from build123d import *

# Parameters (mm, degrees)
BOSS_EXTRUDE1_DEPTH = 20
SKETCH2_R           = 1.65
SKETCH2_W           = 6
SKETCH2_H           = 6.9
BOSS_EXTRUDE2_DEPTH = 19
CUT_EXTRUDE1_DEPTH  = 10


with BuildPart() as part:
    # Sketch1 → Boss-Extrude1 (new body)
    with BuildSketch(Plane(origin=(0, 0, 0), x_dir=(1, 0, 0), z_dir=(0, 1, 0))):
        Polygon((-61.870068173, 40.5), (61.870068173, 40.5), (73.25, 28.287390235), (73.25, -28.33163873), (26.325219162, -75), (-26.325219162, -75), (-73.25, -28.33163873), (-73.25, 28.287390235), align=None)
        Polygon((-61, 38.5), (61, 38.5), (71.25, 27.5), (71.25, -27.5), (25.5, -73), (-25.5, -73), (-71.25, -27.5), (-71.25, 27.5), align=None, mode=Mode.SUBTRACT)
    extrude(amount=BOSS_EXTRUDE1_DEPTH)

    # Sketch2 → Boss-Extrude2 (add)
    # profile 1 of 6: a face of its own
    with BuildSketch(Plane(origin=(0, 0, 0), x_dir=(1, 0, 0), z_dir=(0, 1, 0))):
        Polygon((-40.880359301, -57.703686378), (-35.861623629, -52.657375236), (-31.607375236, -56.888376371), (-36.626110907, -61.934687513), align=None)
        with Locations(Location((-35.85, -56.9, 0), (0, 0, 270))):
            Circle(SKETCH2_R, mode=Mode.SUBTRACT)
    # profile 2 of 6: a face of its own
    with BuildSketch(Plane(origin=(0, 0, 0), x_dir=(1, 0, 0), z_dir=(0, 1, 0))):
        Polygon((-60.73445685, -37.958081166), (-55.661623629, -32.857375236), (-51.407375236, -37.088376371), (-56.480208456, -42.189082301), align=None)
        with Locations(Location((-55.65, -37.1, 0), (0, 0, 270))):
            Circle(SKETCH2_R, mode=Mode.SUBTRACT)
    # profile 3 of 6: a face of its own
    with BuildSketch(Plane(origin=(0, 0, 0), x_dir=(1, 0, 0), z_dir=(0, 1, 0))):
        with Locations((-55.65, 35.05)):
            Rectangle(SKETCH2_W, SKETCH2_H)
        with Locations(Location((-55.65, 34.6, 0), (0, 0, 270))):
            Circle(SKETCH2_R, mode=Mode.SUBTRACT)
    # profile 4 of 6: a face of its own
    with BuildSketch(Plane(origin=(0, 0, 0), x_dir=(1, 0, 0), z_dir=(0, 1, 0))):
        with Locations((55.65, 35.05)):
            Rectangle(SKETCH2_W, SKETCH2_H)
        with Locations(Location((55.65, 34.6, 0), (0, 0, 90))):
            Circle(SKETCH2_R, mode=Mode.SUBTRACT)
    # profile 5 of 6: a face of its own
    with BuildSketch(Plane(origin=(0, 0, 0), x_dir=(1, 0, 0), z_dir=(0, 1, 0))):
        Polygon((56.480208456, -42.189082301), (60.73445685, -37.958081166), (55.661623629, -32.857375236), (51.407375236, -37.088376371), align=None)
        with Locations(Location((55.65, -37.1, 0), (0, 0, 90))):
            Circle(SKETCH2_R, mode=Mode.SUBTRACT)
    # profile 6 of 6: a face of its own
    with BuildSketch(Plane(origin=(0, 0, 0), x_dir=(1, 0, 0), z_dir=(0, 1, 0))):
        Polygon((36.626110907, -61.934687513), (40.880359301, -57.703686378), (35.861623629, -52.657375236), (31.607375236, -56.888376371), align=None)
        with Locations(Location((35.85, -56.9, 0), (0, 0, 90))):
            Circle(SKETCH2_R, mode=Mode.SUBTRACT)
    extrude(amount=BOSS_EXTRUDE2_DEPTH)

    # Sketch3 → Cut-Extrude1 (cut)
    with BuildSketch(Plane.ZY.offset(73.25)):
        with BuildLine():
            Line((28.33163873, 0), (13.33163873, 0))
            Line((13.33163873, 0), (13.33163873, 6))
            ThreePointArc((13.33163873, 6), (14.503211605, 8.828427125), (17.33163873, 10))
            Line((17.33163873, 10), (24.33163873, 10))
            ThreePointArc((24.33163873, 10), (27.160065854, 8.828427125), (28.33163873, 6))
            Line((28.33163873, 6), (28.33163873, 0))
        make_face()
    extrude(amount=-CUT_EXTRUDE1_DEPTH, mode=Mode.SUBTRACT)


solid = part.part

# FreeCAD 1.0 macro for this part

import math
import FreeCAD as App
import Part
import Sketcher
from FreeCAD import Vector
Q = App.Units.Quantity

doc = App.newDocument("Part")
params = doc.addObject("Spreadsheet::Sheet", "Params")
for row, (alias, value) in enumerate([
    ("sketch1_width", "122 mm"),
    ("sketch1_width2", "51 mm"),
    ("sketch1_height", "55 mm"),
    ("pad1_length", "20 mm"),
    ("sketch2_diameter", "3.3 mm"),
    ("sketch2_width", "6 mm"),
    ("sketch2_length", "6 mm"),
    ("sketch2_height", "6.9 mm"),
    ("pad2_length", "19 mm"),
    ("sketch3_radius", "4 mm"),
    ("sketch3_width", "6 mm"),
    ("sketch3_height", "15 mm"),
    ("pocket1_length", "10 mm"),
], start=1):
    params.set(f"A{row}", alias)
    params.set(f"B{row}", "=" + value)
    params.setAlias(f"B{row}", alias)

body = doc.addObject("PartDesign::Body", "Body")

# Sketch on XZ plane
sketch1 = doc.addObject("Sketcher::SketchObject", "Sketch")
body.addObject(sketch1)
sketch1.AttachmentSupport = (doc.XZ_Plane, [""])
sketch1.MapMode = "FlatFace"
sketch1.addGeometry([
    Part.LineSegment(Vector(62, -40, 0), Vector(-62, -40, 0)),  # 0
    Part.LineSegment(Vector(-62, -40, 0), Vector(-73, -28, 0)),  # 1
    Part.LineSegment(Vector(-73, -28, 0), Vector(-73, 28, 0)),  # 2
    Part.LineSegment(Vector(-73, 28, 0), Vector(-26, 75, 0)),  # 3
    Part.LineSegment(Vector(-26, 75, 0), Vector(26, 75, 0)),  # 4
    Part.LineSegment(Vector(26, 75, 0), Vector(73, 28, 0)),  # 5
    Part.LineSegment(Vector(73, 28, 0), Vector(73, -28, 0)),  # 6
    Part.LineSegment(Vector(73, -28, 0), Vector(62, -40, 0)),  # 7
    Part.LineSegment(Vector(-61, -38, 0), Vector(61, -38, 0)),  # 8
    Part.LineSegment(Vector(61, -38, 0), Vector(71, -28, 0)),  # 9
    Part.LineSegment(Vector(71, -28, 0), Vector(71, 28, 0)),  # 10
    Part.LineSegment(Vector(71, 28, 0), Vector(26, 73, 0)),  # 11
    Part.LineSegment(Vector(26, 73, 0), Vector(-26, 73, 0)),  # 12
    Part.LineSegment(Vector(-26, 73, 0), Vector(-71, 28, 0)),  # 13
    Part.LineSegment(Vector(-71, 28, 0), Vector(-71, -28, 0)),  # 14
    Part.LineSegment(Vector(-71, -28, 0), Vector(-61, -38, 0)),  # 15
], False)
sketch1.addConstraint([
    Sketcher.Constraint("Coincident", 0, 2, 1, 1),
    Sketcher.Constraint("Coincident", 1, 2, 2, 1),
    Sketcher.Constraint("Coincident", 2, 2, 3, 1),
    Sketcher.Constraint("Coincident", 3, 2, 4, 1),
    Sketcher.Constraint("Coincident", 4, 2, 5, 1),
    Sketcher.Constraint("Coincident", 5, 2, 6, 1),
    Sketcher.Constraint("Coincident", 6, 2, 7, 1),
    Sketcher.Constraint("Coincident", 7, 2, 0, 1),
    Sketcher.Constraint("Coincident", 8, 2, 9, 1),
    Sketcher.Constraint("Coincident", 9, 2, 10, 1),
    Sketcher.Constraint("Coincident", 10, 2, 11, 1),
    Sketcher.Constraint("Coincident", 11, 2, 12, 1),
    Sketcher.Constraint("Coincident", 12, 2, 13, 1),
    Sketcher.Constraint("Coincident", 13, 2, 14, 1),
    Sketcher.Constraint("Coincident", 14, 2, 15, 1),
    Sketcher.Constraint("Coincident", 15, 2, 8, 1),
    Sketcher.Constraint("Horizontal", 0),
    Sketcher.Constraint("Vertical", 2),
    Sketcher.Constraint("Horizontal", 4),
    Sketcher.Constraint("Vertical", 6),
    Sketcher.Constraint("Horizontal", 8),
    Sketcher.Constraint("Vertical", 10),
    Sketcher.Constraint("Horizontal", 12),
    Sketcher.Constraint("Vertical", 14),
    Sketcher.Constraint("Symmetric", 9, 2, 13, 2, -1, 1),
    Sketcher.Constraint("Symmetric", 2, 2, 5, 2, -2),
    Sketcher.Constraint("Parallel", 7, 9),
    Sketcher.Constraint("Parallel", 5, 11),
    Sketcher.Constraint("Parallel", 3, 13),
    Sketcher.Constraint("Parallel", 1, 15),
    Sketcher.Constraint("Horizontal", 1, 2, 6, 2),
    Sketcher.Constraint("Horizontal", 10, 2, 13, 2),
    Sketcher.Constraint("Horizontal", 9, 2, 14, 2),
    Sketcher.Constraint("Equal", 3, 5),
    Sketcher.Constraint("Equal", 1, 7),
    Sketcher.Constraint("DistanceX", 8, 1, 8, 2, Q("122 mm")),
    Sketcher.Constraint("DistanceX", 12, 2, 12, 1, Q("51 mm")),
    Sketcher.Constraint("DistanceY", 10, 1, 10, 2, Q("55 mm")),
    Sketcher.Constraint("DistanceY", -1, 1, 3, 2, Q("75 mm")),
    Sketcher.Constraint("DistanceY", -1, 1, 11, 2, Q("73 mm")),
    Sketcher.Constraint("DistanceY", 7, 2, 8, 2, Q("2 mm")),
    Sketcher.Constraint("DistanceX", 9, 2, 6, 2, Q("2 mm")),
    Sketcher.Constraint("DistanceY", 8, 2, 9, 2, Q("11 mm")),
    Sketcher.Constraint("DistanceX", 2, 2, 5, 2, Q("146.5 mm")),
    Sketcher.Constraint("DistanceX", 4, 1, 4, 2, Q("52.650438 mm")),
    Sketcher.Constraint("DistanceY", 2, 1, 2, 2, Q("56.619029 mm")),
])
sketch1.setExpression("Constraints[35]", "Params.sketch1_width")
sketch1.setExpression("Constraints[36]", "Params.sketch1_width2")
sketch1.setExpression("Constraints[37]", "Params.sketch1_height")
pad1 = doc.addObject("PartDesign::Pad", "Pad")
body.addObject(pad1)
pad1.Profile = sketch1
pad1.setExpression("Length", "Params.pad1_length")
pad1.Reversed = True

# Sketch on XZ plane
sketch2 = doc.addObject("Sketcher::SketchObject", "Sketch001")
body.addObject(sketch2)
sketch2.AttachmentSupport = (doc.XZ_Plane, [""])
sketch2.MapMode = "FlatFace"
sketch2.addGeometry([
    Part.LineSegment(Vector(-35.9, 52.7, 0), Vector(-40.9, 57.7, 0)),  # 0
    Part.LineSegment(Vector(-40.9, 57.7, 0), Vector(-36.6, 61.9, 0)),  # 1
    Part.LineSegment(Vector(-36.6, 61.9, 0), Vector(-31.6, 56.9, 0)),  # 2
    Part.LineSegment(Vector(-31.6, 56.9, 0), Vector(-35.9, 52.7, 0)),  # 3
    Part.Circle(Vector(-35.9, 56.9, 0), Vector(0, 0, 1), 1.6),  # 4
    Part.LineSegment(Vector(-55.7, 32.9, 0), Vector(-60.7, 38, 0)),  # 5
    Part.LineSegment(Vector(-60.7, 38, 0), Vector(-56.5, 42.2, 0)),  # 6
    Part.LineSegment(Vector(-56.5, 42.2, 0), Vector(-51.4, 37.1, 0)),  # 7
    Part.LineSegment(Vector(-51.4, 37.1, 0), Vector(-55.7, 32.9, 0)),  # 8
    Part.Circle(Vector(-55.6, 37.1, 0), Vector(0, 0, 1), 1.6),  # 9
    Part.LineSegment(Vector(-58.6, -38.5, 0), Vector(-58.6, -31.6, 0)),  # 10
    Part.LineSegment(Vector(-58.6, -31.6, 0), Vector(-52.6, -31.6, 0)),  # 11
    Part.LineSegment(Vector(-52.6, -31.6, 0), Vector(-52.6, -38.5, 0)),  # 12
    Part.LineSegment(Vector(-52.6, -38.5, 0), Vector(-58.6, -38.5, 0)),  # 13
    Part.Circle(Vector(-55.6, -34.6, 0), Vector(0, 0, 1), 1.6),  # 14
    Part.LineSegment(Vector(52.6, -38.5, 0), Vector(52.6, -31.6, 0)),  # 15
    Part.LineSegment(Vector(52.6, -31.6, 0), Vector(58.6, -31.6, 0)),  # 16
    Part.LineSegment(Vector(58.6, -31.6, 0), Vector(58.6, -38.5, 0)),  # 17
    Part.LineSegment(Vector(58.6, -38.5, 0), Vector(52.6, -38.5, 0)),  # 18
    Part.Circle(Vector(55.6, -34.6, 0), Vector(0, 0, 1), 1.6),  # 19
    Part.LineSegment(Vector(56.5, 42.2, 0), Vector(60.7, 38, 0)),  # 20
    Part.LineSegment(Vector(60.7, 38, 0), Vector(55.7, 32.9, 0)),  # 21
    Part.LineSegment(Vector(55.7, 32.9, 0), Vector(51.4, 37.1, 0)),  # 22
    Part.LineSegment(Vector(51.4, 37.1, 0), Vector(56.5, 42.2, 0)),  # 23
    Part.Circle(Vector(55.6, 37.1, 0), Vector(0, 0, 1), 1.6),  # 24
    Part.LineSegment(Vector(36.6, 61.9, 0), Vector(40.9, 57.7, 0)),  # 25
    Part.LineSegment(Vector(40.9, 57.7, 0), Vector(35.9, 52.7, 0)),  # 26
    Part.LineSegment(Vector(35.9, 52.7, 0), Vector(31.6, 56.9, 0)),  # 27
    Part.LineSegment(Vector(31.6, 56.9, 0), Vector(36.6, 61.9, 0)),  # 28
    Part.Circle(Vector(35.9, 56.9, 0), Vector(0, 0, 1), 1.6),  # 29
], False)
sketch2.addConstraint([
    Sketcher.Constraint("Coincident", 0, 2, 1, 1),
    Sketcher.Constraint("Coincident", 1, 2, 2, 1),
    Sketcher.Constraint("Coincident", 2, 2, 3, 1),
    Sketcher.Constraint("Coincident", 3, 2, 0, 1),
    Sketcher.Constraint("Coincident", 5, 2, 6, 1),
    Sketcher.Constraint("Coincident", 6, 2, 7, 1),
    Sketcher.Constraint("Coincident", 7, 2, 8, 1),
    Sketcher.Constraint("Coincident", 8, 2, 5, 1),
    Sketcher.Constraint("Coincident", 10, 2, 11, 1),
    Sketcher.Constraint("Coincident", 11, 2, 12, 1),
    Sketcher.Constraint("Coincident", 12, 2, 13, 1),
    Sketcher.Constraint("Coincident", 13, 2, 10, 1),
    Sketcher.Constraint("Coincident", 15, 2, 16, 1),
    Sketcher.Constraint("Coincident", 16, 2, 17, 1),
    Sketcher.Constraint("Coincident", 17, 2, 18, 1),
    Sketcher.Constraint("Coincident", 18, 2, 15, 1),
    Sketcher.Constraint("Coincident", 20, 2, 21, 1),
    Sketcher.Constraint("Coincident", 21, 2, 22, 1),
    Sketcher.Constraint("Coincident", 22, 2, 23, 1),
    Sketcher.Constraint("Coincident", 23, 2, 20, 1),
    Sketcher.Constraint("Coincident", 25, 2, 26, 1),
    Sketcher.Constraint("Coincident", 26, 2, 27, 1),
    Sketcher.Constraint("Coincident", 27, 2, 28, 1),
    Sketcher.Constraint("Coincident", 28, 2, 25, 1),
    Sketcher.Constraint("Vertical", 10),
    Sketcher.Constraint("Horizontal", 11),
    Sketcher.Constraint("Vertical", 12),
    Sketcher.Constraint("Horizontal", 13),
    Sketcher.Constraint("Vertical", 15),
    Sketcher.Constraint("Horizontal", 16),
    Sketcher.Constraint("Vertical", 17),
    Sketcher.Constraint("Horizontal", 18),
    Sketcher.Constraint("Equal", 4, 9),
    Sketcher.Constraint("Equal", 9, 14),
    Sketcher.Constraint("Equal", 14, 19),
    Sketcher.Constraint("Equal", 19, 24),
    Sketcher.Constraint("Equal", 24, 29),
    Sketcher.Constraint("Symmetric", 14, 3, 19, 3, -2),
    Sketcher.Constraint("Symmetric", 9, 3, 24, 3, -2),
    Sketcher.Constraint("Symmetric", 4, 3, 29, 3, -2),
    Sketcher.Constraint("Symmetric", 11, 2, 15, 2, -2),
    Sketcher.Constraint("Symmetric", 13, 2, 17, 2, -2),
    Sketcher.Constraint("Symmetric", 5, 2, 20, 2, -2),
    Sketcher.Constraint("Symmetric", 8, 2, 21, 2, -2),
    Sketcher.Constraint("Symmetric", 7, 2, 22, 2, -2),
    Sketcher.Constraint("Symmetric", 6, 2, 23, 2, -2),
    Sketcher.Constraint("Symmetric", 0, 2, 25, 2, -2),
    Sketcher.Constraint("Symmetric", 3, 2, 26, 2, -2),
    Sketcher.Constraint("Symmetric", 2, 2, 27, 2, -2),
    Sketcher.Constraint("Symmetric", 1, 2, 28, 2, -2),
    Sketcher.Constraint("Perpendicular", 0, 1),
    Sketcher.Constraint("Perpendicular", 1, 2),
    Sketcher.Constraint("Perpendicular", 2, 3),
    Sketcher.Constraint("Perpendicular", 3, 5),
    Sketcher.Constraint("Perpendicular", 5, 6),
    Sketcher.Constraint("Perpendicular", 6, 7),
    Sketcher.Constraint("Perpendicular", 7, 8),
    Sketcher.Constraint("Vertical", 9, 3, 14, 3),
    Sketcher.Constraint("Equal", 3, 6),
    Sketcher.Constraint("Diameter", 4, Q("3.3 mm")),
    Sketcher.Constraint("DistanceX", 11, 1, 11, 2, Q("6 mm")),
    Sketcher.Constraint("Distance", 1, Q("6 mm")),
    Sketcher.Constraint("DistanceY", 10, 1, 10, 2, Q("6.9 mm")),
    Sketcher.Constraint("DistanceX", 10, 2, 14, 3, Q("3 mm")),
    Sketcher.Constraint("DistanceY", 14, 3, 10, 2, Q("3 mm")),
    Sketcher.Constraint("DistanceY", -1, 1, 4, 3, Q("56.9 mm")),
    Sketcher.Constraint("DistanceY", -1, 1, 9, 3, Q("37.1 mm")),
    Sketcher.Constraint("DistanceY", 14, 3, -1, 1, Q("34.6 mm")),
    Sketcher.Constraint("DistanceX", 9, 3, 4, 3, Q("19.8 mm")),
    Sketcher.Constraint("DistanceX", 14, 3, 19, 3, Q("111.3 mm")),
    Sketcher.Constraint("DistanceX", 8, 2, 3, 2, Q("19.8 mm")),
    Sketcher.Constraint("DistanceY", 8, 2, 3, 2, Q("19.8 mm")),
    Sketcher.Constraint("DistanceY", 0, 2, 1, 2, Q("4.231001 mm")),
    Sketcher.Constraint("Distance", 0, Q("7.11709 mm")),
    Sketcher.Constraint("DistanceX", 0, 2, -1, 1, Q("40.880359 mm")),
    Sketcher.Constraint("DistanceY", -1, 1, 5, 2, Q("37.958081 mm")),
    Sketcher.Constraint("DistanceX", 6, 2, -1, 1, Q("56.480208 mm")),
])
sketch2.setExpression("Constraints[59]", "Params.sketch2_diameter")
sketch2.setExpression("Constraints[60]", "Params.sketch2_width")
sketch2.setExpression("Constraints[61]", "Params.sketch2_length")
sketch2.setExpression("Constraints[62]", "Params.sketch2_height")
pad2 = doc.addObject("PartDesign::Pad", "Pad001")
body.addObject(pad2)
pad2.Profile = sketch2
pad2.setExpression("Length", "Params.pad2_length")
pad2.Reversed = True

# Sketch on YZ plane
sketch3 = doc.addObject("Sketcher::SketchObject", "Sketch002")
body.addObject(sketch3)
sketch3.AttachmentSupport = (doc.YZ_Plane, [""])
sketch3.MapMode = "FlatFace"
sketch3.AttachmentOffset = App.Placement(Vector(0, 0, -73.25), App.Rotation())
sketch3.addGeometry([
    Part.LineSegment(Vector(0, 13.3, 0), Vector(0, 28.3, 0)),  # 0
    Part.LineSegment(Vector(0, 28.3, 0), Vector(6, 28.3, 0)),  # 1
    Part.ArcOfCircle(Part.Circle(Vector(6, 24.3, 0), Vector(0, 0, 1), 4), math.radians(0), math.radians(90)),  # 2
    Part.LineSegment(Vector(10, 24.3, 0), Vector(10, 17.3, 0)),  # 3
    Part.ArcOfCircle(Part.Circle(Vector(6, 17.3, 0), Vector(0, 0, 1), 4), math.radians(-90), math.radians(0)),  # 4
    Part.LineSegment(Vector(6, 13.3, 0), Vector(0, 13.3, 0)),  # 5
], False)
sketch3.addConstraint([
    Sketcher.Constraint("Coincident", 0, 2, 1, 1),
    Sketcher.Constraint("Tangent", 1, 2, 2, 2),
    Sketcher.Constraint("Tangent", 2, 1, 3, 1),
    Sketcher.Constraint("Tangent", 3, 2, 4, 2),
    Sketcher.Constraint("Tangent", 4, 1, 5, 1),
    Sketcher.Constraint("Coincident", 5, 2, 0, 1),
    Sketcher.Constraint("Vertical", 0),
    Sketcher.Constraint("Horizontal", 1),
    Sketcher.Constraint("Vertical", 3),
    Sketcher.Constraint("Horizontal", 5),
    Sketcher.Constraint("Equal", 2, 4),
    Sketcher.Constraint("PointOnObject", 0, 2, -2),
    Sketcher.Constraint("Radius", 2, Q("4 mm")),
    Sketcher.Constraint("DistanceX", 1, 1, 1, 2, Q("6 mm")),
    Sketcher.Constraint("DistanceY", 0, 1, 0, 2, Q("15 mm")),
    Sketcher.Constraint("DistanceY", -1, 1, 2, 3, Q("24.331639 mm")),
])
sketch3.setExpression("Constraints[12]", "Params.sketch3_radius")
sketch3.setExpression("Constraints[13]", "Params.sketch3_width")
sketch3.setExpression("Constraints[14]", "Params.sketch3_height")
pocket1 = doc.addObject("PartDesign::Pocket", "Pocket")
body.addObject(pocket1)
pocket1.Profile = sketch3
pocket1.setExpression("Length", "Params.pocket1_length")
pocket1.Reversed = True

doc.recompute()
